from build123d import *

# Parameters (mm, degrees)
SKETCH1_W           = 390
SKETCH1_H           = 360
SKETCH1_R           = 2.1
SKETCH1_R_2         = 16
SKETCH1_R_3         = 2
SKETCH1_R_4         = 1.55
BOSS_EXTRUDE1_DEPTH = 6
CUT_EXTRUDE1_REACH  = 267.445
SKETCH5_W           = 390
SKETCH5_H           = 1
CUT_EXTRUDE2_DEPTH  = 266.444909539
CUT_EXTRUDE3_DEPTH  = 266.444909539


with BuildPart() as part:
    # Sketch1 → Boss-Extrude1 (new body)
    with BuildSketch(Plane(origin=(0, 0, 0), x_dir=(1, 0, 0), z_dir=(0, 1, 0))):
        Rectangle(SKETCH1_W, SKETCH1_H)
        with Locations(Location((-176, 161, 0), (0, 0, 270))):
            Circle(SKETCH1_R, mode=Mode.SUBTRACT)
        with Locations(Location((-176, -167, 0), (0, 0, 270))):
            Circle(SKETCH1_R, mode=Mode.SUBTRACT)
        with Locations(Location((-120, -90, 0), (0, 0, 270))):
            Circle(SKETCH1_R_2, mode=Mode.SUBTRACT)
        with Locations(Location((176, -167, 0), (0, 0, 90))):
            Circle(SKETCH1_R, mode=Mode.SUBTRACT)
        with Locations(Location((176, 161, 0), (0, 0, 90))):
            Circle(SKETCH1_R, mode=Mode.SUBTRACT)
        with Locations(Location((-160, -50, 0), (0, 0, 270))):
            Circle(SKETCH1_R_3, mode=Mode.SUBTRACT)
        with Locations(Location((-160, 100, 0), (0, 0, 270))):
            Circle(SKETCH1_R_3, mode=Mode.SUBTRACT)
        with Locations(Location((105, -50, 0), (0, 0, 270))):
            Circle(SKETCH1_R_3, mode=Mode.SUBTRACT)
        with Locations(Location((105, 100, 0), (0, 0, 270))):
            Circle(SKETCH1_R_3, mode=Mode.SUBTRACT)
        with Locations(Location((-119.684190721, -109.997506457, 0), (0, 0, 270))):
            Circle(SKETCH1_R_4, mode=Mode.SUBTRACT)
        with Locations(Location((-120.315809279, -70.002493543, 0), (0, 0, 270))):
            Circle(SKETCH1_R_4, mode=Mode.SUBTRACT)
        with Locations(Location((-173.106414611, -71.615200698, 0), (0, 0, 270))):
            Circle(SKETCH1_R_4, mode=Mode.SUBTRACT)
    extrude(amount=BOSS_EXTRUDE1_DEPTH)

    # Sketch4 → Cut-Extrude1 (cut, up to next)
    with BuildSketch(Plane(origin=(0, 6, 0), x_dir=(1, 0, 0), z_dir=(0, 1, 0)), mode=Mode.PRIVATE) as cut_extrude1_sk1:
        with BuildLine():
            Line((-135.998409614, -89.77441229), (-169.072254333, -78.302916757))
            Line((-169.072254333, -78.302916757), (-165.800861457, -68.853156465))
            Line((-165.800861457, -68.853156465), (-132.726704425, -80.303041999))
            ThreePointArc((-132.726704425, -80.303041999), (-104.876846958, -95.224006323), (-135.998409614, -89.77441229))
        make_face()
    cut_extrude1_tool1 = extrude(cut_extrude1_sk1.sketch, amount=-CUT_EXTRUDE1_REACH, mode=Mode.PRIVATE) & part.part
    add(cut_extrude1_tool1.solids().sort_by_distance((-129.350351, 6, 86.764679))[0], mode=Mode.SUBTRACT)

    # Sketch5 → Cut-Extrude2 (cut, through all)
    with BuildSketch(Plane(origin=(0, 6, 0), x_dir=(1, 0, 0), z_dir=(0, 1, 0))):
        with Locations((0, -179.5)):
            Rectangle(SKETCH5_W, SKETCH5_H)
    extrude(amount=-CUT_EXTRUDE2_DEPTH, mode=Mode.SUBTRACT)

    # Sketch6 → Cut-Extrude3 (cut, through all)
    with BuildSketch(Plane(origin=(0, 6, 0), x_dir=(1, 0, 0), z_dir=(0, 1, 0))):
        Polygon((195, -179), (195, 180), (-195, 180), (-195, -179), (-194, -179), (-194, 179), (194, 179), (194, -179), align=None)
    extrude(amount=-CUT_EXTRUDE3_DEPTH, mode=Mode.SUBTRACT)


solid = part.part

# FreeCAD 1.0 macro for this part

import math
import FreeCAD as App
import Part
import Sketcher
Q = App.Units.Quantity


def add_polygon(sketch, points):
    """Adds a closed chain of lines whose ends are joined by coincident constraints."""
    first, n = sketch.GeometryCount, len(points)
    for a, b in zip(points, points[1:] + points[:1]):
        sketch.addGeometry(Part.LineSegment(App.Vector(*a, 0), App.Vector(*b, 0)), False)
    for i in range(n):
        sketch.addConstraint(Sketcher.Constraint("Coincident", first + i, 2, first + (i + 1) % n, 1))

doc = App.newDocument("Part")
body = doc.addObject("PartDesign::Body", "Body")

sketch1 = body.newObject("Sketcher::SketchObject", "Sketch")
sketch1.AttachmentSupport = (doc.getObject("XZ_Plane"), [""])
sketch1.MapMode = "FlatFace"
add_polygon(sketch1, [(-195, -180), (-195, 180), (195, 180), (195, -180)])
sketch1.addGeometry(Part.Circle(App.Vector(-176, 167, 0), App.Vector(0, 0, 1), 2.1), False)
sketch1.addGeometry(Part.Circle(App.Vector(-119.7, 110, 0), App.Vector(0, 0, 1), 1.6), False)
sketch1.addGeometry(Part.Circle(App.Vector(-120, 90, 0), App.Vector(0, 0, 1), 16), False)
sketch1.addGeometry(Part.Circle(App.Vector(-173.1, 71.6, 0), App.Vector(0, 0, 1), 1.6), False)
sketch1.addGeometry(Part.Circle(App.Vector(-160, 50, 0), App.Vector(0, 0, 1), 2), False)
sketch1.addGeometry(Part.Circle(App.Vector(-120.3, 70, 0), App.Vector(0, 0, 1), 1.6), False)
sketch1.addGeometry(Part.Circle(App.Vector(176, 167, 0), App.Vector(0, 0, 1), 2.1), False)
sketch1.addGeometry(Part.Circle(App.Vector(105, 50, 0), App.Vector(0, 0, 1), 2), False)
sketch1.addGeometry(Part.Circle(App.Vector(-160, -100, 0), App.Vector(0, 0, 1), 2), False)
sketch1.addGeometry(Part.Circle(App.Vector(-176, -161, 0), App.Vector(0, 0, 1), 2.1), False)
sketch1.addGeometry(Part.Circle(App.Vector(105, -100, 0), App.Vector(0, 0, 1), 2), False)
sketch1.addGeometry(Part.Circle(App.Vector(176, -161, 0), App.Vector(0, 0, 1), 2.1), False)
sketch1.addConstraint([
    Sketcher.Constraint("Vertical", 0),
    Sketcher.Constraint("Horizontal", 1),
    Sketcher.Constraint("Vertical", 2),
    Sketcher.Constraint("Horizontal", 3),
    Sketcher.Constraint("Equal", 5, 7),
    Sketcher.Constraint("Equal", 7, 9),
    Sketcher.Constraint("Equal", 4, 10),
    Sketcher.Constraint("Equal", 8, 11),
    Sketcher.Constraint("Equal", 11, 12),
    Sketcher.Constraint("Equal", 10, 13),
    Sketcher.Constraint("Equal", 12, 14),
    Sketcher.Constraint("Equal", 13, 15),
    Sketcher.Constraint("Symmetric", 0, 2, 2, 2, -1, 1),
    Sketcher.Constraint("Symmetric", 4, 3, 10, 3, -2),
    Sketcher.Constraint("Symmetric", 13, 3, 15, 3, -2),
    Sketcher.Constraint("Horizontal", 8, 3, 11, 3),
    Sketcher.Constraint("Horizontal", 12, 3, 14, 3),
    Sketcher.Constraint("Vertical", 8, 3, 12, 3),
    Sketcher.Constraint("Vertical", 4, 3, 13, 3),
    Sketcher.Constraint("Vertical", 11, 3, 14, 3),
    Sketcher.Constraint("Diameter", 6, Q("32 mm")),
    Sketcher.Constraint("Diameter", 8, Q("4 mm")),
    Sketcher.Constraint("Diameter", 4, Q("4.2 mm")),
    Sketcher.Constraint("Diameter", 5, Q("3.1 mm")),
    Sketcher.Constraint("DistanceX", 1, 1, 1, 2, Q("390 mm")),
    Sketcher.Constraint("DistanceY", 0, 1, 0, 2, Q("360 mm")),
    Sketcher.Constraint("DistanceX", 4, 3, -1, 1, Q("176 mm")),
    Sketcher.Constraint("DistanceY", -1, 1, 4, 3, Q("167 mm")),
    Sketcher.Constraint("DistanceX", 6, 3, -1, 1, Q("120 mm")),
    Sketcher.Constraint("DistanceY", -1, 1, 6, 3, Q("90 mm")),
    Sketcher.Constraint("DistanceX", 8, 3, -1, 1, Q("160 mm")),
    Sketcher.Constraint("DistanceY", -1, 1, 8, 3, Q("50 mm")),
    Sketcher.Constraint("DistanceX", -1, 1, 11, 3, Q("105 mm")),
    Sketcher.Constraint("DistanceY", 12, 3, -1, 1, Q("100 mm")),
    Sketcher.Constraint("DistanceY", 13, 3, -1, 1, Q("161 mm")),
    Sketcher.Constraint("DistanceY", -1, 1, 7, 3, Q("71.615201 mm")),
    Sketcher.Constraint("DistanceX", 5, 3, -1, 1, Q("119.684191 mm")),
    Sketcher.Constraint("DistanceX", 9, 3, -1, 1, Q("120.315809 mm")),
    Sketcher.Constraint("DistanceY", -1, 1, 5, 3, Q("109.997506 mm")),
    Sketcher.Constraint("DistanceX", 7, 3, -1, 1, Q("173.106415 mm")),
    Sketcher.Constraint("DistanceY", -1, 1, 9, 3, Q("70.002494 mm")),
])
pad1 = body.newObject("PartDesign::Pad", "Pad")
pad1.Profile = sketch1
pad1.Length = 6
pad1.Reversed = True

sketch2 = body.newObject("Sketcher::SketchObject", "Sketch001")
sketch2.AttachmentSupport = (doc.getObject("XZ_Plane"), [""])
sketch2.MapMode = "FlatFace"
sketch2.AttachmentOffset = App.Placement(App.Vector(0, 0, -6), App.Rotation())
sketch2.addGeometry([
    Part.LineSegment(App.Vector(-169.072254, 78.302917, 0), App.Vector(-135.99841, 89.774412, 0)),
    Part.ArcOfCircle(Part.Circle(App.Vector(-120, 90, 0), App.Vector(0, 0, 1), 16), math.radians(-142.694852), math.radians(180.807853)),
    Part.LineSegment(App.Vector(-132.726704, 80.303042, 0), App.Vector(-165.800861, 68.853156, 0)),
    Part.LineSegment(App.Vector(-165.800861, 68.853156, 0), App.Vector(-169.072254, 78.302917, 0)),
], False)
sketch2.addConstraint([
    Sketcher.Constraint("Coincident", 0, 2, 1, 2),
    Sketcher.Constraint("Coincident", 1, 1, 2, 1),
    Sketcher.Constraint("Coincident", 2, 2, 3, 1),
    Sketcher.Constraint("Coincident", 3, 2, 0, 1),
    Sketcher.Constraint("Perpendicular", 2, 3),
    Sketcher.Constraint("Radius", 1, Q("16 mm")),
    Sketcher.Constraint("Distance", 3, Q("9.999999 mm")),
    Sketcher.Constraint("DistanceX", 1, 3, -1, 1, Q("120 mm")),
    Sketcher.Constraint("DistanceY", -1, 1, 1, 3, Q("90 mm")),
    Sketcher.Constraint("DistanceX", 0, 2, -1, 1, Q("135.99841 mm")),
    Sketcher.Constraint("DistanceY", -1, 1, 1, 1, Q("80.303042 mm")),
    Sketcher.Constraint("DistanceX", 2, 2, -1, 1, Q("165.800861 mm")),
    Sketcher.Constraint("DistanceY", 2, 2, 3, 2, Q("9.44976 mm")),
])
pocket1 = body.newObject("PartDesign::Pocket", "Pocket")
pocket1.Profile = sketch2
pocket1.Length = 6
pocket1.Reversed = True

sketch3 = body.newObject("Sketcher::SketchObject", "Sketch002")
sketch3.AttachmentSupport = (doc.getObject("XZ_Plane"), [""])
sketch3.MapMode = "FlatFace"
sketch3.AttachmentOffset = App.Placement(App.Vector(0, 0, -6), App.Rotation())
add_polygon(sketch3, [(-195, 179), (-195, 180), (195, 180), (195, 179)])
sketch3.addConstraint([
    Sketcher.Constraint("Vertical", 0),
    Sketcher.Constraint("Horizontal", 1),
    Sketcher.Constraint("Vertical", 2),
    Sketcher.Constraint("Horizontal", 3),
    Sketcher.Constraint("DistanceX", 1, 1, 1, 2, Q("390 mm")),
    Sketcher.Constraint("DistanceY", 0, 1, 0, 2, Q("1 mm")),
    Sketcher.Constraint("DistanceX", 0, 2, -1, 1, Q("195 mm")),
    Sketcher.Constraint("DistanceY", -1, 1, 0, 2, Q("180 mm")),
])
pocket2 = body.newObject("PartDesign::Pocket", "Pocket001")
pocket2.Profile = sketch3
pocket2.Type = "ThroughAll"
pocket2.Reversed = True

sketch4 = body.newObject("Sketcher::SketchObject", "Sketch003")
sketch4.AttachmentSupport = (doc.getObject("XZ_Plane"), [""])
sketch4.MapMode = "FlatFace"
sketch4.AttachmentOffset = App.Placement(App.Vector(0, 0, -6), App.Rotation())
add_polygon(sketch4, [(195, 179), (195, -180), (-195, -180), (-195, 179), (-194, 179), (-194, -179), (194, -179), (194, 179)])
sketch4.addConstraint([
    Sketcher.Constraint("Vertical", 0),
    Sketcher.Constraint("Horizontal", 1),
    Sketcher.Constraint("Vertical", 2),
    Sketcher.Constraint("Horizontal", 3),
    Sketcher.Constraint("Vertical", 4),
    Sketcher.Constraint("Horizontal", 5),
    Sketcher.Constraint("Vertical", 6),
    Sketcher.Constraint("Horizontal", 7),
    Sketcher.Constraint("Symmetric", 3, 2, 5, 2, -1, 1),
    Sketcher.Constraint("Symmetric", 2, 2, 7, 2, -2),
    Sketcher.Constraint("DistanceX", 1, 2, 1, 1, Q("390 mm")),
    Sketcher.Constraint("DistanceX", 3, 1, 3, 2, Q("1 mm")),
    Sketcher.Constraint("DistanceY", 0, 2, 0, 1, Q("359 mm")),
    Sketcher.Constraint("DistanceY", 4, 2, 4, 1, Q("358 mm")),
])
pocket3 = body.newObject("PartDesign::Pocket", "Pocket002")
pocket3.Profile = sketch4
pocket3.Type = "ThroughAll"
pocket3.Reversed = True

doc.recompute()
